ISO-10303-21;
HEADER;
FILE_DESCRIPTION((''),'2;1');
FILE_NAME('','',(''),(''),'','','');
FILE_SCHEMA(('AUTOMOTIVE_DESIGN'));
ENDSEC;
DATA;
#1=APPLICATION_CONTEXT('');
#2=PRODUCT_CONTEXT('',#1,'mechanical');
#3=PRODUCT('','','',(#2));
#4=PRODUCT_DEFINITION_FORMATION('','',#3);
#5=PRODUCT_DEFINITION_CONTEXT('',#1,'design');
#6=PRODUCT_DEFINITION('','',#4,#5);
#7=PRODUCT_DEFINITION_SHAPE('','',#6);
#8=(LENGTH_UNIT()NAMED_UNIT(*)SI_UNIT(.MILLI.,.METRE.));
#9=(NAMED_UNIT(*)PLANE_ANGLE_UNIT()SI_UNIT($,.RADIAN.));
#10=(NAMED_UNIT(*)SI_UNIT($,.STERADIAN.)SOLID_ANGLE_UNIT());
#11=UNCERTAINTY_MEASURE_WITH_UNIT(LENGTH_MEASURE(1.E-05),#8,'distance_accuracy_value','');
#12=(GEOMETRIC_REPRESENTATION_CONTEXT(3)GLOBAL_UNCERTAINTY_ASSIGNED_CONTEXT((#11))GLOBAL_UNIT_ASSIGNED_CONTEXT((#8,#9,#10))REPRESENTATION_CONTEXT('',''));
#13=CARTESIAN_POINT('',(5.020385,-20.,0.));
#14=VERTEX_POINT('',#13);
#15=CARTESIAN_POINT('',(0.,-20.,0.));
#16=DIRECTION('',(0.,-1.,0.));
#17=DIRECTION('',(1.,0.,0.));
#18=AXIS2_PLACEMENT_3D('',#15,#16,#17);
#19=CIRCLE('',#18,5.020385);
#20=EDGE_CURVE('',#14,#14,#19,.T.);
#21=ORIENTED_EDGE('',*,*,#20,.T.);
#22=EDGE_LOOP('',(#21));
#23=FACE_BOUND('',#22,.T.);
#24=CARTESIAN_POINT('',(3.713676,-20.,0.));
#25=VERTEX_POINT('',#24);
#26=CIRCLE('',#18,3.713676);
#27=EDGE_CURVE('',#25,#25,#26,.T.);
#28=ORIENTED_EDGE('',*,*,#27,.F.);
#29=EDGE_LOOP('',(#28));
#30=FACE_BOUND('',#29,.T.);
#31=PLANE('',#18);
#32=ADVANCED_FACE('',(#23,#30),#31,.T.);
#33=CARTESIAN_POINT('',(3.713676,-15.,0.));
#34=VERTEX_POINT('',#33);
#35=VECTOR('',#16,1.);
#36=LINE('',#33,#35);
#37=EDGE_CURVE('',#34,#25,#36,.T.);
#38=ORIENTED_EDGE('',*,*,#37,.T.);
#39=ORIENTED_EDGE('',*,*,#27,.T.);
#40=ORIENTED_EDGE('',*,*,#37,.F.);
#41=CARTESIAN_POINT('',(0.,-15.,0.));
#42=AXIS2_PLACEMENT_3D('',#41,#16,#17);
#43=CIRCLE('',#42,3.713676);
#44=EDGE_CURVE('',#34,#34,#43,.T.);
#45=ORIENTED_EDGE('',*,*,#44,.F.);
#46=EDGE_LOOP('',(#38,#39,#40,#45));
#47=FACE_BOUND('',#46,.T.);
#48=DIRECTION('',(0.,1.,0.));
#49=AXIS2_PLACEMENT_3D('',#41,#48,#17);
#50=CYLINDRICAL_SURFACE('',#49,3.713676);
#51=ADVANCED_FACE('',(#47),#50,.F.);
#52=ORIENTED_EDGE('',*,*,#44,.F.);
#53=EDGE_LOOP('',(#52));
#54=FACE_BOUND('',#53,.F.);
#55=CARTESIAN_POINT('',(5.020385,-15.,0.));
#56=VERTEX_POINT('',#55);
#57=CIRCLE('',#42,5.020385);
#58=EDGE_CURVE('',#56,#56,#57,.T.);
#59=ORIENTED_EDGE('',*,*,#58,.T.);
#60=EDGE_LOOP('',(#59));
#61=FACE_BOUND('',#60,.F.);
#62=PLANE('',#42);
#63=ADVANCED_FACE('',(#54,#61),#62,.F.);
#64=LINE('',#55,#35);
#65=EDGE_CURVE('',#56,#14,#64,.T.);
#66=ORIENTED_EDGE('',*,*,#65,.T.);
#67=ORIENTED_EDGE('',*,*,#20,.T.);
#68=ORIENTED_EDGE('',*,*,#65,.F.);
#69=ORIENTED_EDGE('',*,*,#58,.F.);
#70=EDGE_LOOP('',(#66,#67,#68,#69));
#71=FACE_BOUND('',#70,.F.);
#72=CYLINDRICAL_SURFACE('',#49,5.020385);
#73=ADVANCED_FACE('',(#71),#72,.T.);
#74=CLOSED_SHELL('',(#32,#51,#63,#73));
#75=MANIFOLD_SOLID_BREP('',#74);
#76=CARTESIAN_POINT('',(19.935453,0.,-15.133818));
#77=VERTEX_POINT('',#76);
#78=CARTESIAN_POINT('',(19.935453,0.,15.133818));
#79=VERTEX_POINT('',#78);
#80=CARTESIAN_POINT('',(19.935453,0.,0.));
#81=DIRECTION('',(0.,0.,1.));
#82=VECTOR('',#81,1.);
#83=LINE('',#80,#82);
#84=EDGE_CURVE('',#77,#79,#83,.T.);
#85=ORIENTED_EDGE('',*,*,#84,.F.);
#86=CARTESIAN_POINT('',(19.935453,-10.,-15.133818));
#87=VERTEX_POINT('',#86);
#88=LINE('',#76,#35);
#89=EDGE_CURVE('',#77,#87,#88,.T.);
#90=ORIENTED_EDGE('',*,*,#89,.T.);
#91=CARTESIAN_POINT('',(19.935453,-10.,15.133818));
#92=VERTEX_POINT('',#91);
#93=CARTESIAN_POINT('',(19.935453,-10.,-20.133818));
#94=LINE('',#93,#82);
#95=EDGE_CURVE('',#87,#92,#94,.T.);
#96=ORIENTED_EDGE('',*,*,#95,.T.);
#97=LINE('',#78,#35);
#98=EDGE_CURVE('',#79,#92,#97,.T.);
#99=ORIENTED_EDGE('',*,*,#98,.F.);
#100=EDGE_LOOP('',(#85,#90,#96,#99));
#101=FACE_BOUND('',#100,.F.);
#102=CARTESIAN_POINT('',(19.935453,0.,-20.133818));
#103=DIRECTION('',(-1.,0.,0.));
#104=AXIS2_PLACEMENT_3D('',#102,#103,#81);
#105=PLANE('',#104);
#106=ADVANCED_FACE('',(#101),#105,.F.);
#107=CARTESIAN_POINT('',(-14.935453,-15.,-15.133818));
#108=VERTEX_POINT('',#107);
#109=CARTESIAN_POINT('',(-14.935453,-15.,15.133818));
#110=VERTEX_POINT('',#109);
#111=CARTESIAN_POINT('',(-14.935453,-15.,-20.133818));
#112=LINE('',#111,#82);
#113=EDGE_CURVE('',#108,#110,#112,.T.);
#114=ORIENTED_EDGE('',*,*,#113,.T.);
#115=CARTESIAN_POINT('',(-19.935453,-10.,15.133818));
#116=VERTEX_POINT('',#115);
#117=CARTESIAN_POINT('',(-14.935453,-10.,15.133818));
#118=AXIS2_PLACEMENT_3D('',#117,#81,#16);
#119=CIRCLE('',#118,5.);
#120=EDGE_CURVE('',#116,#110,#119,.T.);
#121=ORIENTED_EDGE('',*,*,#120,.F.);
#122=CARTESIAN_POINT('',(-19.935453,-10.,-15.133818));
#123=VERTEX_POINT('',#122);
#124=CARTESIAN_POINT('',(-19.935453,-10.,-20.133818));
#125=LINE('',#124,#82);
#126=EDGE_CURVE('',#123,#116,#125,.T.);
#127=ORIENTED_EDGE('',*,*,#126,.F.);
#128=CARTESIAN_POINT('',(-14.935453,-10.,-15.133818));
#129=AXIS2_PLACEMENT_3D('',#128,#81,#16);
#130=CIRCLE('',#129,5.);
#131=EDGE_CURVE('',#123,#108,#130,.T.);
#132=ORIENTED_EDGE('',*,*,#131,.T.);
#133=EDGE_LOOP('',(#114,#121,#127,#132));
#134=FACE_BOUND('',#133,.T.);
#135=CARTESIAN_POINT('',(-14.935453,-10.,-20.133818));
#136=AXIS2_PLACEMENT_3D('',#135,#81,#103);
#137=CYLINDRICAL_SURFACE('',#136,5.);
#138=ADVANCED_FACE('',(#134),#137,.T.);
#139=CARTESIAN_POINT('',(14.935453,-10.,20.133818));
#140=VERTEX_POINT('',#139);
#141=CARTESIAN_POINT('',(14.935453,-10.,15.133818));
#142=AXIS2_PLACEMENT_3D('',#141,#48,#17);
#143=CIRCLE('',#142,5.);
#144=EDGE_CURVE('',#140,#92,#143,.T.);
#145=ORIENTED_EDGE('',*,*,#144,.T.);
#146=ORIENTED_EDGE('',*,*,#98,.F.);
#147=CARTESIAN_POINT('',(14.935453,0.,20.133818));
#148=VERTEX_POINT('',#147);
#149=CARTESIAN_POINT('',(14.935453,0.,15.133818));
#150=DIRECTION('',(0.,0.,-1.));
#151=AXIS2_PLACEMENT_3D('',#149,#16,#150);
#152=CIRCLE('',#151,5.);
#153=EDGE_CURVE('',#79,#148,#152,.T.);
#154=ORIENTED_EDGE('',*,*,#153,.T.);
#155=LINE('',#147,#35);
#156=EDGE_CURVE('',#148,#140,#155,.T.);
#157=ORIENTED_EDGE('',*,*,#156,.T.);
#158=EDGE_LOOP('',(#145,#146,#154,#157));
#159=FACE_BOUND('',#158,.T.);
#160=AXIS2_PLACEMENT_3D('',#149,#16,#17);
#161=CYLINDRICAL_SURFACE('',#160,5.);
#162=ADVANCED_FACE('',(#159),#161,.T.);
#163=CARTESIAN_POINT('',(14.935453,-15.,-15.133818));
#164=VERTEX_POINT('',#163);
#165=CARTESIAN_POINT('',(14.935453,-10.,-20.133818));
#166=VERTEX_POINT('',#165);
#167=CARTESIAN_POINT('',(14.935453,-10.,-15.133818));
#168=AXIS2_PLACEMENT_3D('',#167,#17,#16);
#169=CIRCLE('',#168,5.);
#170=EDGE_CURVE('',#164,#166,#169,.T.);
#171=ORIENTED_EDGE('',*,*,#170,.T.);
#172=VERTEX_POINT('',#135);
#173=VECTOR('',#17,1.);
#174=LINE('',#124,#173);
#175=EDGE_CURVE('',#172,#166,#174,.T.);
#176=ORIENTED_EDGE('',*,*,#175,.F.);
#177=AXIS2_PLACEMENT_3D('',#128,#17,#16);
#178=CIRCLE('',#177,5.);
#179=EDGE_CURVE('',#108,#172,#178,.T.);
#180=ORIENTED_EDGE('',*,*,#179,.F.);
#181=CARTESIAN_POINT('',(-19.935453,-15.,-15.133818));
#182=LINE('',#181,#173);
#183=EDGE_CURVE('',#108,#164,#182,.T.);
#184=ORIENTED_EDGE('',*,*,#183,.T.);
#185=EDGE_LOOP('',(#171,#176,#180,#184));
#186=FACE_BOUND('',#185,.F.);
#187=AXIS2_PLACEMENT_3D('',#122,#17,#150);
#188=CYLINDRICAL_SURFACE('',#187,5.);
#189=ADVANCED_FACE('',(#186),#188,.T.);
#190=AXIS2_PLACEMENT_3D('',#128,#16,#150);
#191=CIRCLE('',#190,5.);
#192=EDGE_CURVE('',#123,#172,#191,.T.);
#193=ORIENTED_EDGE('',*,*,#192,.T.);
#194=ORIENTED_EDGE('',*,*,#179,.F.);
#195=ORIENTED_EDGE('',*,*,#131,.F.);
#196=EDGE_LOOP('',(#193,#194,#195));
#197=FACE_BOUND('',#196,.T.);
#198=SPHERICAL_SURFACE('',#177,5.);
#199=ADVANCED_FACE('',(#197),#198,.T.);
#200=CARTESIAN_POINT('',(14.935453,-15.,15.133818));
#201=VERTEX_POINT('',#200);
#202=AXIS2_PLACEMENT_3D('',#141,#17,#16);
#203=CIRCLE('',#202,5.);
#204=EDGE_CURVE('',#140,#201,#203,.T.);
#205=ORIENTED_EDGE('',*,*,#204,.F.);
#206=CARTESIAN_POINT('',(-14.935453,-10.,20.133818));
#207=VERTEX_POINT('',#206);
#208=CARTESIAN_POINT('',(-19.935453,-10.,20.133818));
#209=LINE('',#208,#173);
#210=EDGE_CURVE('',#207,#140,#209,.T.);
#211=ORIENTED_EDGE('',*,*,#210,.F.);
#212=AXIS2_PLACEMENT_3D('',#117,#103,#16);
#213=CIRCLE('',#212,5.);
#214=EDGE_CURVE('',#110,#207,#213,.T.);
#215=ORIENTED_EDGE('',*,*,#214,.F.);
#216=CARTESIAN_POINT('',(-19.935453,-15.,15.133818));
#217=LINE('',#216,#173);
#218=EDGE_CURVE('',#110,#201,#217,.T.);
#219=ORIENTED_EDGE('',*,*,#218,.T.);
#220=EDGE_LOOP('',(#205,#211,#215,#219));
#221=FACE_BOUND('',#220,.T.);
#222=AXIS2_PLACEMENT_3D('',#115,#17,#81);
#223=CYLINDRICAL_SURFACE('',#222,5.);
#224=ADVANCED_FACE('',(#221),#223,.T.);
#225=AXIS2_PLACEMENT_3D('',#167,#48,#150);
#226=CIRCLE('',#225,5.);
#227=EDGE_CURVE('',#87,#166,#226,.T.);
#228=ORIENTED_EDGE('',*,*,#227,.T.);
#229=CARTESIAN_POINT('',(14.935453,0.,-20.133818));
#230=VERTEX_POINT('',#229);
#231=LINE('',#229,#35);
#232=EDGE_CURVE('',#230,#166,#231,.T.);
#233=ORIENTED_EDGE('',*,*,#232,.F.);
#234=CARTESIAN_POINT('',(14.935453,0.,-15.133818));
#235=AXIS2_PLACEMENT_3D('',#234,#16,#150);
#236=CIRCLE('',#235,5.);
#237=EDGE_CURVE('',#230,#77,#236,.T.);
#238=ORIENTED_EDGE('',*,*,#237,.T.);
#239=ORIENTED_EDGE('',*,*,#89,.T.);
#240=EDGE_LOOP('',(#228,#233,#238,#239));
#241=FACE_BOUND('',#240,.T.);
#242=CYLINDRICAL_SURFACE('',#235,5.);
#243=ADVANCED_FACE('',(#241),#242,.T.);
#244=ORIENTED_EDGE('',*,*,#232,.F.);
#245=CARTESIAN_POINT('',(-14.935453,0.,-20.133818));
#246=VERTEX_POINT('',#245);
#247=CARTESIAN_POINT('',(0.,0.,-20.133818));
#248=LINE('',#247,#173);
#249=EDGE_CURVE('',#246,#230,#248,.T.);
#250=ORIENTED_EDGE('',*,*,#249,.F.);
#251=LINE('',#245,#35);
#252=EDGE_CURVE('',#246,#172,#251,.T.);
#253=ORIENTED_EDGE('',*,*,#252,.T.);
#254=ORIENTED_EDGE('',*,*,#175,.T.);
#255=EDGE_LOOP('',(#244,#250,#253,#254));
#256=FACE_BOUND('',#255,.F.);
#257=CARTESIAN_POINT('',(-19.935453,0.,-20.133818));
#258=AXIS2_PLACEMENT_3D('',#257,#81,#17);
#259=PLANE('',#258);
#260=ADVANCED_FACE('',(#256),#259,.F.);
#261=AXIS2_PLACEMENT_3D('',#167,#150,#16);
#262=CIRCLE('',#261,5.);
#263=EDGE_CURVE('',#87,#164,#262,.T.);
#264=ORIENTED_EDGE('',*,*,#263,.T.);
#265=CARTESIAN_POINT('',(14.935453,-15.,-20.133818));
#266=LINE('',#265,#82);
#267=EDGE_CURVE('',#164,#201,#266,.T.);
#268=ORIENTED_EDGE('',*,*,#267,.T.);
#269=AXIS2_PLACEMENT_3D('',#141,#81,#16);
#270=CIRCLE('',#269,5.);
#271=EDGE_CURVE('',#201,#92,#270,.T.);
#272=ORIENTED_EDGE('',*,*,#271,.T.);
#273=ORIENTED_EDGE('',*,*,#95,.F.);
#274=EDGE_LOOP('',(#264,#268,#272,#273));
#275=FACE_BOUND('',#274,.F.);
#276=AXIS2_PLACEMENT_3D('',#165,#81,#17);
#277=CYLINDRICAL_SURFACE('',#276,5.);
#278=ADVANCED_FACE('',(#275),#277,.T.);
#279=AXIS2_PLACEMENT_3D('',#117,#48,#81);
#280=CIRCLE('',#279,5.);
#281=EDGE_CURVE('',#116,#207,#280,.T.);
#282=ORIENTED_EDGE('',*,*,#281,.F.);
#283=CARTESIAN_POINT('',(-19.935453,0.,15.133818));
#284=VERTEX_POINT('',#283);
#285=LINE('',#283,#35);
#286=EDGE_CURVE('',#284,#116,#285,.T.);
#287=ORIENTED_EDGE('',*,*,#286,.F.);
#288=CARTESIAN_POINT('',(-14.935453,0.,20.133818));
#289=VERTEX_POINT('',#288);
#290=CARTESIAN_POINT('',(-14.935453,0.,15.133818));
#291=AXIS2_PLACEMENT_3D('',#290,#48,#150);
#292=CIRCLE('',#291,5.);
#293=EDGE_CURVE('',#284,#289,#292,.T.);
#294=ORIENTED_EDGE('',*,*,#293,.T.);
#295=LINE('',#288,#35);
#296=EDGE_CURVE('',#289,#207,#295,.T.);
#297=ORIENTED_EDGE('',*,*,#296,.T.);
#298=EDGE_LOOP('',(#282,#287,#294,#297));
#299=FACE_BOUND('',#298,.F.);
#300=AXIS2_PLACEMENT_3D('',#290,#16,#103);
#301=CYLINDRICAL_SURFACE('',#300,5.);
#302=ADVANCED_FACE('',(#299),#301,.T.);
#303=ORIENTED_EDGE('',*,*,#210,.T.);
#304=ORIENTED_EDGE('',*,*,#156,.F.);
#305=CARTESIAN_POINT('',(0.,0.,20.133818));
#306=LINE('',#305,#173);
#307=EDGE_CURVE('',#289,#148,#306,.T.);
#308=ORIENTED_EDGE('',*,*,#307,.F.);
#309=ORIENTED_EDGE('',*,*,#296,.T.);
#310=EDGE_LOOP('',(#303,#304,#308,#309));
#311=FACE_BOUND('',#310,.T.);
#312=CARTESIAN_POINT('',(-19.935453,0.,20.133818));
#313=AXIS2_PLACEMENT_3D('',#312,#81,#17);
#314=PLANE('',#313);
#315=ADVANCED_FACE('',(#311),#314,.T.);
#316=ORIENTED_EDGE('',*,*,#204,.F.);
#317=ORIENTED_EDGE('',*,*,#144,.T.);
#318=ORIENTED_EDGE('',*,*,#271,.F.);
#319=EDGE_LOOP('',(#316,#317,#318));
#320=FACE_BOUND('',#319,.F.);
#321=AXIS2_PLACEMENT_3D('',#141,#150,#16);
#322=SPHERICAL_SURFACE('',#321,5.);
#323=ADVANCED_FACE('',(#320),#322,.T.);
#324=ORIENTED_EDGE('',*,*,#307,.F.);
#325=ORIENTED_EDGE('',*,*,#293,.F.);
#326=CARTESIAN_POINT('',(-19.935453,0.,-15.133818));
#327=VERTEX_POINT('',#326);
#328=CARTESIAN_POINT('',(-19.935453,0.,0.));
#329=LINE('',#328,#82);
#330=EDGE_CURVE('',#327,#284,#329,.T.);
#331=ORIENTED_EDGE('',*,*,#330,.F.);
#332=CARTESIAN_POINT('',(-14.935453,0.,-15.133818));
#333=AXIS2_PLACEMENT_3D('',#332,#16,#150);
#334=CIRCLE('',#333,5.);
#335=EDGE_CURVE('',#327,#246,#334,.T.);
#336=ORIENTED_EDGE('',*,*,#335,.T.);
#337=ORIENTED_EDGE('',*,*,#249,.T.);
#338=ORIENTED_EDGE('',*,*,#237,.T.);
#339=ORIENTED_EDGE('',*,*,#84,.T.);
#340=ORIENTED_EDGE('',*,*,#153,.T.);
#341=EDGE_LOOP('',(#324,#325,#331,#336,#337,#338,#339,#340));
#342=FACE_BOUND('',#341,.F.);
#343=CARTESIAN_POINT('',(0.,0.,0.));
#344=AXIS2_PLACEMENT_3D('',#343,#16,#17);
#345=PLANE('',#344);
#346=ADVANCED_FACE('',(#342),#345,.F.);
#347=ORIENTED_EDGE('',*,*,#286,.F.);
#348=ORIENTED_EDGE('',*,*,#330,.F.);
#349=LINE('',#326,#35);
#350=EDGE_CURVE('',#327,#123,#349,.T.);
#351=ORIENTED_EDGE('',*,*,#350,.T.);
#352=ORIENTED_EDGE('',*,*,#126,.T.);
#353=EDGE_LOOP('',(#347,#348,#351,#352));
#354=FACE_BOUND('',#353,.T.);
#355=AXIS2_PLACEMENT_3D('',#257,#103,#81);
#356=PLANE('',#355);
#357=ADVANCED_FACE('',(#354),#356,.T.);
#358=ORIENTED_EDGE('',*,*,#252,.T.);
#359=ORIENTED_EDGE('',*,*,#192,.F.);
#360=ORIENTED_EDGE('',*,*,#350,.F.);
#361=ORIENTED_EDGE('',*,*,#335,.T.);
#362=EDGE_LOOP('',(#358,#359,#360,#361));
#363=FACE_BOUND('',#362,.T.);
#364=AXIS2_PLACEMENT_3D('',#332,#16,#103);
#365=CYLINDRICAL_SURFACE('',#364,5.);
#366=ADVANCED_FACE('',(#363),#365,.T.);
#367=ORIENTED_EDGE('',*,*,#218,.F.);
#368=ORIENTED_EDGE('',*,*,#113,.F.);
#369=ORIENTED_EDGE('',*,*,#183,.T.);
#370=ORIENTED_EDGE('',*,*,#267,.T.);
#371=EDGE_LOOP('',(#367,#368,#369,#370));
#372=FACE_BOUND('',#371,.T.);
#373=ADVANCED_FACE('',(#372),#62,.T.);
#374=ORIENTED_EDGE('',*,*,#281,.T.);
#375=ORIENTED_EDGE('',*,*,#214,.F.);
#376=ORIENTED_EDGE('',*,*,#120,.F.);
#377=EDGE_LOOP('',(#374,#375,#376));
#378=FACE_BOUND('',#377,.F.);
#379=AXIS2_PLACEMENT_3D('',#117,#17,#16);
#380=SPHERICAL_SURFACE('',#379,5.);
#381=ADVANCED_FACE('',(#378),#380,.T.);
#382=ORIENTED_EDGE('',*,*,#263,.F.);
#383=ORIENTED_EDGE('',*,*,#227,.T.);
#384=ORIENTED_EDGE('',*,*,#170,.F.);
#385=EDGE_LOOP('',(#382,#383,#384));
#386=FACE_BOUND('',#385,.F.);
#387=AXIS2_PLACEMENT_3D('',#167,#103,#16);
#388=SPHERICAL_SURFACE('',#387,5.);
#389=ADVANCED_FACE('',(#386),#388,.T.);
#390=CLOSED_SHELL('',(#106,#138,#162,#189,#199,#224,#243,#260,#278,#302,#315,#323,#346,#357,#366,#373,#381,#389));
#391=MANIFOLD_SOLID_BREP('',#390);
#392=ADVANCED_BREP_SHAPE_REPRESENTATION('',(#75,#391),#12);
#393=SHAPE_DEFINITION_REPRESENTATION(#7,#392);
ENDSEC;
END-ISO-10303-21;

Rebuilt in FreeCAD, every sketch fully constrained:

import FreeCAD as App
import Part
import Sketcher
from FreeCAD import Vector


def edges_at(feature, points):
    """Names of the edges that pass closest to the given points."""
    edges = feature.Shape.Edges
    near = lambda p: min(range(len(edges)), key=lambda i: edges[i].distToShape(Part.Vertex(*p))[0])
    return sorted({f"Edge{near(p) + 1}" for p in points})

doc = App.newDocument("Part")
params = doc.addObject("Spreadsheet::Sheet", "Params")
for row, (alias, value) in enumerate([
    ("pad1_length", "15 mm"),
    ("fillet_radius", "5 mm"),
    ("pad2_length", "5 mm"),
], start=1):
    params.set(f"A{row}", alias)
    params.set(f"B{row}", "=" + value)
    params.setAlias(f"B{row}", alias)

body = doc.addObject("PartDesign::Body", "Body")

# Sketch on XZ plane
sketch1 = body.newObject("Sketcher::SketchObject", "Sketch")
sketch1.AttachmentSupport = (doc.getObject("XZ_Plane"), [""])
sketch1.MapMode = "FlatFace"
sketch1.addGeometry([
    Part.LineSegment(Vector(-20, 20, 0), Vector(-20, -20, 0)),
    Part.LineSegment(Vector(-20, -20, 0), Vector(20, -20, 0)),
    Part.LineSegment(Vector(20, -20, 0), Vector(20, 20, 0)),
    Part.LineSegment(Vector(20, 20, 0), Vector(-20, 20, 0)),
], False)
sketch1.addConstraint([
    Sketcher.Constraint("Coincident", 0, 2, 1, 1),
    Sketcher.Constraint("Coincident", 1, 2, 2, 1),
    Sketcher.Constraint("Coincident", 2, 2, 3, 1),
    Sketcher.Constraint("Coincident", 3, 2, 0, 1),
    Sketcher.Constraint("Vertical", 0),
    Sketcher.Constraint("Horizontal", 1),
    Sketcher.Constraint("Vertical", 2),
    Sketcher.Constraint("Horizontal", 3),
    Sketcher.Constraint("Symmetric", 0, 2, 2, 2, -1, 1),
    Sketcher.Constraint("DistanceX", 1, 1, 1, 2, 39.870906),
    Sketcher.Constraint("DistanceY", 0, 2, 0, 1, 40.267636),
])
pad1 = body.newObject("PartDesign::Pad", "Pad")
pad1.Profile = sketch1
pad1.setExpression("Length", "Params.pad1_length")
doc.recompute()

fillet = body.newObject("PartDesign::Fillet", "Fillet")
fillet.Base = (pad1, edges_at(pad1, [
    (0, -15, -20.134),
    (19.935, -15, 0),
    (0, -15, 20.134),
    (-19.935, -15, 0),
    (-19.935, -7.5, -20.134),
    (-19.935, -7.5, 20.134),
    (19.935, -7.5, -20.134),
    (19.935, -7.5, 20.134),
]))
fillet.setExpression("Radius", "Params.fillet_radius")
body2 = doc.addObject("PartDesign::Body", "Body001")

# Sketch on XZ plane
sketch2 = body2.newObject("Sketcher::SketchObject", "Sketch001")
sketch2.AttachmentSupport = (doc.getObject("XZ_Plane001"), [""])
sketch2.MapMode = "FlatFace"
sketch2.AttachmentOffset = App.Placement(Vector(0, 0, 15), App.Rotation())
sketch2.addGeometry([
    Part.Circle(Vector(0, 0, 0), Vector(0, 0, 1), 5),
    Part.Circle(Vector(0, 0, 0), Vector(0, 0, 1), 3.7),
], False)
sketch2.addConstraint([
    Sketcher.Constraint("Coincident", 0, 3, -1, 1),
    Sketcher.Constraint("Coincident", 1, 3, -1, 1),
    Sketcher.Constraint("Diameter", 0, 10.04077),
    Sketcher.Constraint("Diameter", 1, 7.427352),
])
pad2 = body2.newObject("PartDesign::Pad", "Pad001")
pad2.Profile = sketch2
pad2.setExpression("Length", "Params.pad2_length")

doc.recompute()
